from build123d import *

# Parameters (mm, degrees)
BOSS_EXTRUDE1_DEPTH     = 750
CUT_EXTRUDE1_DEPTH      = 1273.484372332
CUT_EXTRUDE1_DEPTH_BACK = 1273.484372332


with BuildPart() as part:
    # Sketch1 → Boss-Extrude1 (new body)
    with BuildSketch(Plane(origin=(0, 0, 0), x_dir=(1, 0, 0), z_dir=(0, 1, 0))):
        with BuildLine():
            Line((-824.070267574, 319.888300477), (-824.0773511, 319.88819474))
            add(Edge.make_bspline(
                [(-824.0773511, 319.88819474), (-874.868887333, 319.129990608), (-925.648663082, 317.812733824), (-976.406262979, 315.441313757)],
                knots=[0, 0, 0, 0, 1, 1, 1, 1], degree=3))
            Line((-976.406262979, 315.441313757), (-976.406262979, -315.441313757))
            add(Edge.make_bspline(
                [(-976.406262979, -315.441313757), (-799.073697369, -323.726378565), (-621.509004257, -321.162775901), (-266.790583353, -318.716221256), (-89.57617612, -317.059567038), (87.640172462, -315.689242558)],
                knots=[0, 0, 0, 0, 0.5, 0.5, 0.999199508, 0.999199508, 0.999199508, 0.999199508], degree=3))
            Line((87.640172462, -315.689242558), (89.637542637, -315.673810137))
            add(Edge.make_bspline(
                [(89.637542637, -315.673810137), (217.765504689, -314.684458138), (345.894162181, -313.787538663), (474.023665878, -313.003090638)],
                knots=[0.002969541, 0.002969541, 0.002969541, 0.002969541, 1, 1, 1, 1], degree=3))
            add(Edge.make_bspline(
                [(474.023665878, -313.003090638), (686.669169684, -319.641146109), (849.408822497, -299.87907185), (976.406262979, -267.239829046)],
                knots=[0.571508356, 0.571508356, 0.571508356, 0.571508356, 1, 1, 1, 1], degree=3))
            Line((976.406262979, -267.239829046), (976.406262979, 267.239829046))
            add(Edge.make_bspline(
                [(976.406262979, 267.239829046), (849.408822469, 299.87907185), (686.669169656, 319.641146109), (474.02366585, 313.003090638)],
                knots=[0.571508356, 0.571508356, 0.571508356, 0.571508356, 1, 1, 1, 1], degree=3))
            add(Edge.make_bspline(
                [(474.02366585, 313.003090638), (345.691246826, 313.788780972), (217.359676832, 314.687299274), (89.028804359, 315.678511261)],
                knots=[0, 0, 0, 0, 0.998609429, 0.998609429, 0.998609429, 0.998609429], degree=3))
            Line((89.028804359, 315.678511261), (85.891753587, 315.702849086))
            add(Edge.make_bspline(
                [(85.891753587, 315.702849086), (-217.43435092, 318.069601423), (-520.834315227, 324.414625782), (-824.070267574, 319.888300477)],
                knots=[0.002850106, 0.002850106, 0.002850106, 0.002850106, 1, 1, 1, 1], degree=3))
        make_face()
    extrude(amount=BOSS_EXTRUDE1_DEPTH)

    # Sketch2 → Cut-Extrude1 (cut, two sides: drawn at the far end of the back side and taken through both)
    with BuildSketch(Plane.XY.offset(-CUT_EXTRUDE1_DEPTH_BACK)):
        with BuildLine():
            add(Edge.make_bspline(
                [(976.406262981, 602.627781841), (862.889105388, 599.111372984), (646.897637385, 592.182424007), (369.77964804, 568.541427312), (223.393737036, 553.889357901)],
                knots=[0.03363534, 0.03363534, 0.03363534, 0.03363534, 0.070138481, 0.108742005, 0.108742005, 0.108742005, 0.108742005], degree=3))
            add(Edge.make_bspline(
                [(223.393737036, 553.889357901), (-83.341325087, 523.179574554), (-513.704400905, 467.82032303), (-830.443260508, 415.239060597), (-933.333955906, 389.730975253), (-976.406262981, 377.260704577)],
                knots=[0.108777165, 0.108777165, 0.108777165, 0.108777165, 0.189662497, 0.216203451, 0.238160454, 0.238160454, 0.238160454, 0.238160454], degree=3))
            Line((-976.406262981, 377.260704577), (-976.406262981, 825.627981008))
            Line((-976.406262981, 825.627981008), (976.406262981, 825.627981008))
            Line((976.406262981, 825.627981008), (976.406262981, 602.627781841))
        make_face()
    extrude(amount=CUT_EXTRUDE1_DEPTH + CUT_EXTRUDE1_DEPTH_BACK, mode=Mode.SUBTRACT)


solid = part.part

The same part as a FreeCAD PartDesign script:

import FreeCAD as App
import Part
import Sketcher
from FreeCAD import Vector

doc = App.newDocument("Part")
body = doc.addObject("PartDesign::Body", "Body")

# Sketch on XZ plane
sketch1 = doc.addObject("Sketcher::SketchObject", "Sketch")
body.addObject(sketch1)
sketch1.AttachmentSupport = (doc.XZ_Plane, [""])
sketch1.MapMode = "FlatFace"
sketch1.addGeometry(Part.LineSegment(Vector(-824.070268, -319.8883, 0), Vector(-824.077351, -319.888195, 0)), False)
sketch1.addGeometry(Part.BSplineCurve([Vector(-824.077351, -319.888195, 0), Vector(-874.868887, -319.129991, 0), Vector(-925.648663, -317.812734, 0), Vector(-976.406263, -315.441314, 0)], [4, 4], [0, 1], False, 3, [1, 1, 1, 1], False), False)
sketch1.addGeometry(Part.LineSegment(Vector(-976.406263, -315.441314, 0), Vector(-976.406263, 315.441314, 0)), False)
sketch1.addGeometry(Part.BSplineCurve([Vector(-976.406263, 315.441314, 0), Vector(-799.073697, 323.726379, 0), Vector(-621.509004, 321.162776, 0), Vector(-266.790583, 318.716221, 0), Vector(-89.576176, 317.059567, 0), Vector(87.640172, 315.689243, 0)], [4, 2, 4], [0, 0.5, 0.999199508], False, 3, [1, 1, 1, 1, 1, 1], False), False)
sketch1.addGeometry(Part.LineSegment(Vector(87.640172, 315.689243, 0), Vector(89.637543, 315.67381, 0)), False)
sketch1.addGeometry(Part.BSplineCurve([Vector(89.637543, 315.67381, 0), Vector(217.765505, 314.684458, 0), Vector(345.894162, 313.787539, 0), Vector(474.023666, 313.003091, 0)], [4, 4], [0.002969541, 1], False, 3, [1, 1, 1, 1], False), False)
sketch1.addGeometry(Part.BSplineCurve([Vector(474.023666, 313.003091, 0), Vector(686.66917, 319.641146, 0), Vector(849.408822, 299.879072, 0), Vector(976.406263, 267.239829, 0)], [4, 4], [0.571508356, 1], False, 3, [1, 1, 1, 1], False), False)
sketch1.addGeometry(Part.LineSegment(Vector(976.406263, 267.239829, 0), Vector(976.406263, -267.239829, 0)), False)
sketch1.addGeometry(Part.BSplineCurve([Vector(976.406263, -267.239829, 0), Vector(849.408822, -299.879072, 0), Vector(686.66917, -319.641146, 0), Vector(474.023666, -313.003091, 0)], [4, 4], [0.571508356, 1], False, 3, [1, 1, 1, 1], False), False)
sketch1.addGeometry(Part.BSplineCurve([Vector(474.023666, -313.003091, 0), Vector(345.691247, -313.788781, 0), Vector(217.359677, -314.687299, 0), Vector(89.028804, -315.678511, 0)], [4, 4], [0, 0.998609429], False, 3, [1, 1, 1, 1], False), False)
sketch1.addGeometry(Part.LineSegment(Vector(89.028804, -315.678511, 0), Vector(85.891754, -315.702849, 0)), False)
sketch1.addGeometry(Part.BSplineCurve([Vector(85.891754, -315.702849, 0), Vector(-217.434351, -318.069601, 0), Vector(-520.834315, -324.414626, 0), Vector(-824.070268, -319.8883, 0)], [4, 4], [0.002850106, 1], False, 3, [1, 1, 1, 1], False), False)
sketch1.addConstraint(Sketcher.Constraint("Block", 1))
sketch1.addConstraint(Sketcher.Constraint("Block", 3))
sketch1.addConstraint(Sketcher.Constraint("Block", 5))
sketch1.addConstraint(Sketcher.Constraint("Block", 6))
sketch1.addConstraint(Sketcher.Constraint("Block", 8))
sketch1.addConstraint(Sketcher.Constraint("Block", 9))
sketch1.addConstraint(Sketcher.Constraint("Block", 11))
sketch1.addConstraint(Sketcher.Constraint("Coincident", 0, 2, 1, 1))
sketch1.addConstraint(Sketcher.Constraint("Coincident", 1, 2, 2, 1))
sketch1.addConstraint(Sketcher.Constraint("Coincident", 2, 2, 3, 1))
sketch1.addConstraint(Sketcher.Constraint("Coincident", 3, 2, 4, 1))
sketch1.addConstraint(Sketcher.Constraint("Coincident", 4, 2, 5, 1))
sketch1.addConstraint(Sketcher.Constraint("Coincident", 6, 2, 7, 1))
sketch1.addConstraint(Sketcher.Constraint("Coincident", 7, 2, 8, 1))
sketch1.addConstraint(Sketcher.Constraint("Coincident", 9, 2, 10, 1))
sketch1.addConstraint(Sketcher.Constraint("Coincident", 10, 2, 11, 1))
sketch1.addConstraint(Sketcher.Constraint("Coincident", 11, 2, 0, 1))
pad1 = doc.addObject("PartDesign::Pad", "Pad")
body.addObject(pad1)
pad1.Profile = sketch1
pad1.Length = 750
pad1.Reversed = True

# Sketch on XY plane
sketch2 = doc.addObject("Sketcher::SketchObject", "Sketch001")
body.addObject(sketch2)
sketch2.AttachmentSupport = (doc.XY_Plane, [""])
sketch2.MapMode = "FlatFace"
sketch2.addGeometry(Part.BSplineCurve([Vector(976.406263, 602.627782, 0), Vector(862.889105, 599.111373, 0), Vector(646.897637, 592.182424, 0), Vector(369.779648, 568.541427, 0), Vector(223.393737, 553.889358, 0)], [4, 1, 4], [0.03363534, 0.070138481, 0.108742005], False, 3, [1, 1, 1, 1, 1], False), False)
sketch2.addGeometry(Part.LineSegment(Vector(976.406263, 602.627782, 0), Vector(976.406263, 825.627981, 0)), False)
sketch2.addGeometry(Part.LineSegment(Vector(976.406263, 825.627981, 0), Vector(-976.406263, 825.627981, 0)), False)
sketch2.addGeometry(Part.LineSegment(Vector(-976.406263, 825.627981, 0), Vector(-976.406263, 377.260705, 0)), False)
sketch2.addGeometry(Part.BSplineCurve([Vector(223.393737, 553.889358, 0), Vector(-83.341325, 523.179575, 0), Vector(-513.704401, 467.820323, 0), Vector(-830.443261, 415.239061, 0), Vector(-933.333956, 389.730975, 0), Vector(-976.406263, 377.260705, 0)], [4, 1, 1, 4], [0.108777165, 0.189662497, 0.216203451, 0.238160454], False, 3, [1, 1, 1, 1, 1, 1], False), False)
sketch2.addConstraint(Sketcher.Constraint("Block", 0))
sketch2.addConstraint(Sketcher.Constraint("Block", 4))
sketch2.addConstraint(Sketcher.Constraint("Coincident", 0, 1, 1, 1))
sketch2.addConstraint(Sketcher.Constraint("Coincident", 1, 2, 2, 1))
sketch2.addConstraint(Sketcher.Constraint("Coincident", 2, 2, 3, 1))
sketch2.addConstraint(Sketcher.Constraint("Coincident", 3, 2, 4, 2))
sketch2.addConstraint(Sketcher.Constraint("Vertical", 1))
sketch2.addConstraint(Sketcher.Constraint("Horizontal", 2))
sketch2.addConstraint(Sketcher.Constraint("Vertical", 3))
sketch2.addConstraint(Sketcher.Constraint("DistanceY", 1, 1, 1, 2, 223.000199))
pocket1 = doc.addObject("PartDesign::Pocket", "Pocket")
body.addObject(pocket1)
pocket1.Profile = sketch2
pocket1.Type = "ThroughAll"
pocket1.Midplane = True

doc.recompute()
